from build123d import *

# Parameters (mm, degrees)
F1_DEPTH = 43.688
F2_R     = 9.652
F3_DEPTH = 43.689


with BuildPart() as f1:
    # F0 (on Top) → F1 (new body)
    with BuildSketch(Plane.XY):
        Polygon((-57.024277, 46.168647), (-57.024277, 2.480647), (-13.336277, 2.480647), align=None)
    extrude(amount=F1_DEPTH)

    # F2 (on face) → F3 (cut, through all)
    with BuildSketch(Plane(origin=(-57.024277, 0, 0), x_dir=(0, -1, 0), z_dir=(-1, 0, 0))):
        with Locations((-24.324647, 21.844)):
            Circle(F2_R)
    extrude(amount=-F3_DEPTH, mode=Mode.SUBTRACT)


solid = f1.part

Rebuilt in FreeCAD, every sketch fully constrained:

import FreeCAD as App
import Part
import Sketcher
Q = App.Units.Quantity

doc = App.newDocument("Part")
body = doc.addObject("PartDesign::Body", "Body")

# Sketch on XY plane
sketch1 = body.newObject("Sketcher::SketchObject", "Sketch")
sketch1.AttachmentSupport = (doc.getObject("XY_Plane"), [""])
sketch1.MapMode = "FlatFace"
sketch1.addGeometry([
    Part.LineSegment(App.Vector(-57, 46, 0), App.Vector(-57, 2, 0)),
    Part.LineSegment(App.Vector(-57, 2, 0), App.Vector(-13, 2, 0)),
    Part.LineSegment(App.Vector(-13, 2, 0), App.Vector(-57, 46, 0)),
], False)
sketch1.addConstraint([
    Sketcher.Constraint("Coincident", 0, 2, 1, 1),
    Sketcher.Constraint("Coincident", 1, 2, 2, 1),
    Sketcher.Constraint("Coincident", 2, 2, 0, 1),
    Sketcher.Constraint("Vertical", 0),
    Sketcher.Constraint("Horizontal", 1),
    Sketcher.Constraint("Equal", 1, 0),
    Sketcher.Constraint("DistanceX", 1, 1, 1, 2, Q("1.72 in")),
    Sketcher.Constraint("DistanceX", 0, 2, -1, 1, Q("57.024277 mm")),
    Sketcher.Constraint("DistanceY", -1, 1, 0, 2, Q("2.480647 mm")),
])
pad1 = body.newObject("PartDesign::Pad", "Pad")
pad1.Profile = sketch1
pad1.Length = Q("1.72 in")

# Sketch on YZ plane
sketch2 = body.newObject("Sketcher::SketchObject", "Sketch001")
sketch2.AttachmentSupport = (doc.getObject("YZ_Plane"), [""])
sketch2.MapMode = "FlatFace"
sketch2.AttachmentOffset = App.Placement(App.Vector(0, 0, -57.024277), App.Rotation())
sketch2.addGeometry(Part.Circle(App.Vector(24, 22, 0), App.Vector(0, 0, 1), 10), False)
sketch2.addConstraint([
    Sketcher.Constraint("Diameter", 0, Q("0.76 in")),
    Sketcher.Constraint("DistanceY", -1, 1, 0, 3, Q("0.86 in")),
    Sketcher.Constraint("DistanceX", -1, 1, 0, 3, Q("24.324647 mm")),
])
pocket1 = body.newObject("PartDesign::Pocket", "Pocket")
pocket1.Profile = sketch2
pocket1.Type = "ThroughAll"
pocket1.Reversed = True

doc.recompute()
